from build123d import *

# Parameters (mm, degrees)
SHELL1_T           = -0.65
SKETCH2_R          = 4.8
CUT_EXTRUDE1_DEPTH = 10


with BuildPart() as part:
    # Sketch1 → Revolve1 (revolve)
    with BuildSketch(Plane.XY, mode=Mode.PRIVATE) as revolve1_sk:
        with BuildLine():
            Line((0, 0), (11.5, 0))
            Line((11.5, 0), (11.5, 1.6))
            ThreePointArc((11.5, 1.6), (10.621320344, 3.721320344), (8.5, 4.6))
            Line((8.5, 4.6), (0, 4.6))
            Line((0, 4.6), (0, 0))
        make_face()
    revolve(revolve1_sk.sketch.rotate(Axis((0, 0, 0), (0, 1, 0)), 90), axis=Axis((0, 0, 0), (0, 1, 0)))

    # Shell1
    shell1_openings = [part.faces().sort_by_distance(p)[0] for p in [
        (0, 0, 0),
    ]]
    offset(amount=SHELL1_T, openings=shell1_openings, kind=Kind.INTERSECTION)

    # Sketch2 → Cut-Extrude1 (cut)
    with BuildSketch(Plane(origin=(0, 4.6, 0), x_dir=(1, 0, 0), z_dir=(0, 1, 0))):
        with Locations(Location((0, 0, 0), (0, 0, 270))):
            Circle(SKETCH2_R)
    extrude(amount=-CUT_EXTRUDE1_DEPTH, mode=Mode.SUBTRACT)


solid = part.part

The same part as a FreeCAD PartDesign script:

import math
import FreeCAD as App
import Part
import Sketcher


def faces_at(feature, points):
    """Names of the faces that lie closest to the given points."""
    faces = feature.Shape.Faces
    near = lambda p: min(range(len(faces)), key=lambda i: faces[i].distToShape(Part.Vertex(*p))[0])
    return sorted({f"Face{near(p) + 1}" for p in points})

doc = App.newDocument("Part")
body = doc.addObject("PartDesign::Body", "Body")

# Sketch on XY plane
sketch1 = doc.addObject("Sketcher::SketchObject", "Sketch")
body.addObject(sketch1)
sketch1.AttachmentSupport = (doc.XY_Plane, [""])
sketch1.MapMode = "FlatFace"
sketch1.addGeometry([
    Part.LineSegment(App.Vector(0, 0, 0), App.Vector(11.5, 0, 0)),  # 0
    Part.LineSegment(App.Vector(11.5, 0, 0), App.Vector(11.5, 1.6, 0)),  # 1
    Part.ArcOfCircle(Part.Circle(App.Vector(8.5, 1.6, 0), App.Vector(0, 0, 1), 3), math.radians(0), math.radians(90)),  # 2
    Part.LineSegment(App.Vector(8.5, 4.6, 0), App.Vector(0, 4.6, 0)),  # 3
    Part.LineSegment(App.Vector(0, 4.6, 0), App.Vector(0, 0, 0)),  # 4
], False)
sketch1.addConstraint([
    Sketcher.Constraint("Coincident", 0, 2, 1, 1),
    Sketcher.Constraint("Tangent", 1, 2, 2, 1),
    Sketcher.Constraint("Tangent", 2, 2, 3, 1),
    Sketcher.Constraint("Coincident", 3, 2, 4, 1),
    Sketcher.Constraint("Coincident", 4, 2, 0, 1),
    Sketcher.Constraint("Horizontal", 0),
    Sketcher.Constraint("Vertical", 1),
    Sketcher.Constraint("Horizontal", 3),
    Sketcher.Constraint("Vertical", 4),
    Sketcher.Constraint("Coincident", 4, 2, -1, 1),
    Sketcher.Constraint("Radius", 2, 3.0),
    Sketcher.Constraint("DistanceX", 0, 1, 0, 2, 11.5),
    Sketcher.Constraint("DistanceY", 1, 1, 1, 2, 1.6),
])
revolution = doc.addObject("PartDesign::Revolution", "Revolution")
body.addObject(revolution)
revolution.Profile = sketch1
revolution.ReferenceAxis = (sketch1, ["V_Axis"])
revolution.Angle = 360
doc.recompute()

thickness = doc.addObject("PartDesign::Thickness", "Thickness")
body.addObject(thickness)
thickness.Base = (revolution, faces_at(revolution, [(0, 0, 0)]))
thickness.Value = 0.65
thickness.Reversed = True
thickness.Join = "Intersection"

# Sketch on XZ plane
sketch2 = doc.addObject("Sketcher::SketchObject", "Sketch001")
body.addObject(sketch2)
sketch2.AttachmentSupport = (doc.XZ_Plane, [""])
sketch2.MapMode = "FlatFace"
sketch2.AttachmentOffset = App.Placement(App.Vector(0, 0, -4.6), App.Rotation())
sketch2.addGeometry(Part.Circle(App.Vector(0, 0, 0), App.Vector(0, 0, 1), 4.8), False)
sketch2.addConstraint([
    Sketcher.Constraint("Coincident", 0, 3, -1, 1),
    Sketcher.Constraint("Diameter", 0, 9.6),
])
pocket1 = doc.addObject("PartDesign::Pocket", "Pocket")
body.addObject(pocket1)
pocket1.Profile = sketch2
pocket1.Length = 10
pocket1.Reversed = True

doc.recompute()
